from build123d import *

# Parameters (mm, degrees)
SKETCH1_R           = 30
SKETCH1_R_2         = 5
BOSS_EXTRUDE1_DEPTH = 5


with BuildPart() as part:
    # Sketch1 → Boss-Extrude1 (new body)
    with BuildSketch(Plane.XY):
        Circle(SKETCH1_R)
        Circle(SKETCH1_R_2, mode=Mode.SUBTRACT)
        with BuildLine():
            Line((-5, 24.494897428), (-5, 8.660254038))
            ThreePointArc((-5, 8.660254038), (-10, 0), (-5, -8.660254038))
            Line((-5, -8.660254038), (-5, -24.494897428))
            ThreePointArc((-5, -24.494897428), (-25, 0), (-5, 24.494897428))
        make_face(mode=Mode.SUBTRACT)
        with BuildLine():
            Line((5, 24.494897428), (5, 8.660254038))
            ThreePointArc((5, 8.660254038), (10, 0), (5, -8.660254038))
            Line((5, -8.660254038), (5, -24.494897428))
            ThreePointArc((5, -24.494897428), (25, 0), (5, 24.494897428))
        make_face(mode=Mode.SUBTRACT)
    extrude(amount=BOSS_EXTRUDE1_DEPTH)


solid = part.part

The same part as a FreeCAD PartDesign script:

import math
import FreeCAD as App
import Part
import Sketcher
from FreeCAD import Vector
Q = App.Units.Quantity

doc = App.newDocument("Part")
params = doc.addObject("Spreadsheet::Sheet", "Params")
for row, (alias, value) in enumerate([
    ("sketch1_diameter", "60 mm"),
    ("sketch1_diameter2", "10 mm"),
    ("sketch1_radius", "25 mm"),
    ("sketch1_radius2", "10 mm"),
    ("pad1_length", "5 mm"),
], start=1):
    params.set(f"A{row}", alias)
    params.set(f"B{row}", "=" + value)
    params.setAlias(f"B{row}", alias)

body = doc.addObject("PartDesign::Body", "Body")

sketch1 = body.newObject("Sketcher::SketchObject", "Sketch")
sketch1.AttachmentSupport = (doc.getObject("XY_Plane"), [""])
sketch1.MapMode = "FlatFace"
sketch1.addGeometry([
    Part.Circle(Vector(0, 0, 0), Vector(0, 0, 1), 30),
    Part.ArcOfCircle(Part.Circle(Vector(0, 0, 0), Vector(0, 0, 1), 25), math.radians(102), math.radians(258)),
    Part.LineSegment(Vector(-5, 24, 0), Vector(-5, 9, 0)),
    Part.ArcOfCircle(Part.Circle(Vector(0, 0, 0), Vector(0, 0, 1), 10), math.radians(120), math.radians(240)),
    Part.LineSegment(Vector(-5, -9, 0), Vector(-5, -24, 0)),
    Part.Circle(Vector(0, 0, 0), Vector(0, 0, 1), 5),
    Part.LineSegment(Vector(5, 9, 0), Vector(5, 24, 0)),
    Part.ArcOfCircle(Part.Circle(Vector(0, 0, 0), Vector(0, 0, 1), 25), math.radians(-78), math.radians(78)),
    Part.LineSegment(Vector(5, -24, 0), Vector(5, -9, 0)),
    Part.ArcOfCircle(Part.Circle(Vector(0, 0, 0), Vector(0, 0, 1), 10), math.radians(-60), math.radians(60)),
], False)
sketch1.addConstraint([
    Sketcher.Constraint("Coincident", 1, 1, 2, 1),
    Sketcher.Constraint("Coincident", 2, 2, 3, 1),
    Sketcher.Constraint("Coincident", 3, 2, 4, 1),
    Sketcher.Constraint("Coincident", 4, 2, 1, 2),
    Sketcher.Constraint("Coincident", 6, 2, 7, 2),
    Sketcher.Constraint("Coincident", 7, 1, 8, 1),
    Sketcher.Constraint("Coincident", 8, 2, 9, 1),
    Sketcher.Constraint("Coincident", 9, 2, 6, 1),
    Sketcher.Constraint("Vertical", 2),
    Sketcher.Constraint("Vertical", 4),
    Sketcher.Constraint("Vertical", 6),
    Sketcher.Constraint("Vertical", 8),
    Sketcher.Constraint("Coincident", 0, 3, -1, 1),
    Sketcher.Constraint("Coincident", 1, 3, -1, 1),
    Sketcher.Constraint("Coincident", 3, 3, -1, 1),
    Sketcher.Constraint("Coincident", 5, 3, -1, 1),
    Sketcher.Constraint("Coincident", 7, 3, -1, 1),
    Sketcher.Constraint("Coincident", 9, 3, -1, 1),
    Sketcher.Constraint("Equal", 1, 7),
    Sketcher.Constraint("Equal", 3, 9),
    Sketcher.Constraint("Horizontal", 1, 1, 6, 2),
    Sketcher.Constraint("Horizontal", 4, 2, 7, 1),
    Sketcher.Constraint("Vertical", 2, 2, 3, 2),
    Sketcher.Constraint("Diameter", 0, Q("60 mm")),
    Sketcher.Constraint("Diameter", 5, Q("10 mm")),
    Sketcher.Constraint("Radius", 1, Q("25 mm")),
    Sketcher.Constraint("Radius", 3, Q("10 mm")),
    Sketcher.Constraint("DistanceX", 1, 1, -1, 1, Q("5 mm")),
])
sketch1.setExpression("Constraints[23]", "Params.sketch1_diameter")
sketch1.setExpression("Constraints[24]", "Params.sketch1_diameter2")
sketch1.setExpression("Constraints[25]", "Params.sketch1_radius")
sketch1.setExpression("Constraints[26]", "Params.sketch1_radius2")
pad1 = body.newObject("PartDesign::Pad", "Pad")
pad1.Profile = sketch1
pad1.setExpression("Length", "Params.pad1_length")

doc.recompute()
